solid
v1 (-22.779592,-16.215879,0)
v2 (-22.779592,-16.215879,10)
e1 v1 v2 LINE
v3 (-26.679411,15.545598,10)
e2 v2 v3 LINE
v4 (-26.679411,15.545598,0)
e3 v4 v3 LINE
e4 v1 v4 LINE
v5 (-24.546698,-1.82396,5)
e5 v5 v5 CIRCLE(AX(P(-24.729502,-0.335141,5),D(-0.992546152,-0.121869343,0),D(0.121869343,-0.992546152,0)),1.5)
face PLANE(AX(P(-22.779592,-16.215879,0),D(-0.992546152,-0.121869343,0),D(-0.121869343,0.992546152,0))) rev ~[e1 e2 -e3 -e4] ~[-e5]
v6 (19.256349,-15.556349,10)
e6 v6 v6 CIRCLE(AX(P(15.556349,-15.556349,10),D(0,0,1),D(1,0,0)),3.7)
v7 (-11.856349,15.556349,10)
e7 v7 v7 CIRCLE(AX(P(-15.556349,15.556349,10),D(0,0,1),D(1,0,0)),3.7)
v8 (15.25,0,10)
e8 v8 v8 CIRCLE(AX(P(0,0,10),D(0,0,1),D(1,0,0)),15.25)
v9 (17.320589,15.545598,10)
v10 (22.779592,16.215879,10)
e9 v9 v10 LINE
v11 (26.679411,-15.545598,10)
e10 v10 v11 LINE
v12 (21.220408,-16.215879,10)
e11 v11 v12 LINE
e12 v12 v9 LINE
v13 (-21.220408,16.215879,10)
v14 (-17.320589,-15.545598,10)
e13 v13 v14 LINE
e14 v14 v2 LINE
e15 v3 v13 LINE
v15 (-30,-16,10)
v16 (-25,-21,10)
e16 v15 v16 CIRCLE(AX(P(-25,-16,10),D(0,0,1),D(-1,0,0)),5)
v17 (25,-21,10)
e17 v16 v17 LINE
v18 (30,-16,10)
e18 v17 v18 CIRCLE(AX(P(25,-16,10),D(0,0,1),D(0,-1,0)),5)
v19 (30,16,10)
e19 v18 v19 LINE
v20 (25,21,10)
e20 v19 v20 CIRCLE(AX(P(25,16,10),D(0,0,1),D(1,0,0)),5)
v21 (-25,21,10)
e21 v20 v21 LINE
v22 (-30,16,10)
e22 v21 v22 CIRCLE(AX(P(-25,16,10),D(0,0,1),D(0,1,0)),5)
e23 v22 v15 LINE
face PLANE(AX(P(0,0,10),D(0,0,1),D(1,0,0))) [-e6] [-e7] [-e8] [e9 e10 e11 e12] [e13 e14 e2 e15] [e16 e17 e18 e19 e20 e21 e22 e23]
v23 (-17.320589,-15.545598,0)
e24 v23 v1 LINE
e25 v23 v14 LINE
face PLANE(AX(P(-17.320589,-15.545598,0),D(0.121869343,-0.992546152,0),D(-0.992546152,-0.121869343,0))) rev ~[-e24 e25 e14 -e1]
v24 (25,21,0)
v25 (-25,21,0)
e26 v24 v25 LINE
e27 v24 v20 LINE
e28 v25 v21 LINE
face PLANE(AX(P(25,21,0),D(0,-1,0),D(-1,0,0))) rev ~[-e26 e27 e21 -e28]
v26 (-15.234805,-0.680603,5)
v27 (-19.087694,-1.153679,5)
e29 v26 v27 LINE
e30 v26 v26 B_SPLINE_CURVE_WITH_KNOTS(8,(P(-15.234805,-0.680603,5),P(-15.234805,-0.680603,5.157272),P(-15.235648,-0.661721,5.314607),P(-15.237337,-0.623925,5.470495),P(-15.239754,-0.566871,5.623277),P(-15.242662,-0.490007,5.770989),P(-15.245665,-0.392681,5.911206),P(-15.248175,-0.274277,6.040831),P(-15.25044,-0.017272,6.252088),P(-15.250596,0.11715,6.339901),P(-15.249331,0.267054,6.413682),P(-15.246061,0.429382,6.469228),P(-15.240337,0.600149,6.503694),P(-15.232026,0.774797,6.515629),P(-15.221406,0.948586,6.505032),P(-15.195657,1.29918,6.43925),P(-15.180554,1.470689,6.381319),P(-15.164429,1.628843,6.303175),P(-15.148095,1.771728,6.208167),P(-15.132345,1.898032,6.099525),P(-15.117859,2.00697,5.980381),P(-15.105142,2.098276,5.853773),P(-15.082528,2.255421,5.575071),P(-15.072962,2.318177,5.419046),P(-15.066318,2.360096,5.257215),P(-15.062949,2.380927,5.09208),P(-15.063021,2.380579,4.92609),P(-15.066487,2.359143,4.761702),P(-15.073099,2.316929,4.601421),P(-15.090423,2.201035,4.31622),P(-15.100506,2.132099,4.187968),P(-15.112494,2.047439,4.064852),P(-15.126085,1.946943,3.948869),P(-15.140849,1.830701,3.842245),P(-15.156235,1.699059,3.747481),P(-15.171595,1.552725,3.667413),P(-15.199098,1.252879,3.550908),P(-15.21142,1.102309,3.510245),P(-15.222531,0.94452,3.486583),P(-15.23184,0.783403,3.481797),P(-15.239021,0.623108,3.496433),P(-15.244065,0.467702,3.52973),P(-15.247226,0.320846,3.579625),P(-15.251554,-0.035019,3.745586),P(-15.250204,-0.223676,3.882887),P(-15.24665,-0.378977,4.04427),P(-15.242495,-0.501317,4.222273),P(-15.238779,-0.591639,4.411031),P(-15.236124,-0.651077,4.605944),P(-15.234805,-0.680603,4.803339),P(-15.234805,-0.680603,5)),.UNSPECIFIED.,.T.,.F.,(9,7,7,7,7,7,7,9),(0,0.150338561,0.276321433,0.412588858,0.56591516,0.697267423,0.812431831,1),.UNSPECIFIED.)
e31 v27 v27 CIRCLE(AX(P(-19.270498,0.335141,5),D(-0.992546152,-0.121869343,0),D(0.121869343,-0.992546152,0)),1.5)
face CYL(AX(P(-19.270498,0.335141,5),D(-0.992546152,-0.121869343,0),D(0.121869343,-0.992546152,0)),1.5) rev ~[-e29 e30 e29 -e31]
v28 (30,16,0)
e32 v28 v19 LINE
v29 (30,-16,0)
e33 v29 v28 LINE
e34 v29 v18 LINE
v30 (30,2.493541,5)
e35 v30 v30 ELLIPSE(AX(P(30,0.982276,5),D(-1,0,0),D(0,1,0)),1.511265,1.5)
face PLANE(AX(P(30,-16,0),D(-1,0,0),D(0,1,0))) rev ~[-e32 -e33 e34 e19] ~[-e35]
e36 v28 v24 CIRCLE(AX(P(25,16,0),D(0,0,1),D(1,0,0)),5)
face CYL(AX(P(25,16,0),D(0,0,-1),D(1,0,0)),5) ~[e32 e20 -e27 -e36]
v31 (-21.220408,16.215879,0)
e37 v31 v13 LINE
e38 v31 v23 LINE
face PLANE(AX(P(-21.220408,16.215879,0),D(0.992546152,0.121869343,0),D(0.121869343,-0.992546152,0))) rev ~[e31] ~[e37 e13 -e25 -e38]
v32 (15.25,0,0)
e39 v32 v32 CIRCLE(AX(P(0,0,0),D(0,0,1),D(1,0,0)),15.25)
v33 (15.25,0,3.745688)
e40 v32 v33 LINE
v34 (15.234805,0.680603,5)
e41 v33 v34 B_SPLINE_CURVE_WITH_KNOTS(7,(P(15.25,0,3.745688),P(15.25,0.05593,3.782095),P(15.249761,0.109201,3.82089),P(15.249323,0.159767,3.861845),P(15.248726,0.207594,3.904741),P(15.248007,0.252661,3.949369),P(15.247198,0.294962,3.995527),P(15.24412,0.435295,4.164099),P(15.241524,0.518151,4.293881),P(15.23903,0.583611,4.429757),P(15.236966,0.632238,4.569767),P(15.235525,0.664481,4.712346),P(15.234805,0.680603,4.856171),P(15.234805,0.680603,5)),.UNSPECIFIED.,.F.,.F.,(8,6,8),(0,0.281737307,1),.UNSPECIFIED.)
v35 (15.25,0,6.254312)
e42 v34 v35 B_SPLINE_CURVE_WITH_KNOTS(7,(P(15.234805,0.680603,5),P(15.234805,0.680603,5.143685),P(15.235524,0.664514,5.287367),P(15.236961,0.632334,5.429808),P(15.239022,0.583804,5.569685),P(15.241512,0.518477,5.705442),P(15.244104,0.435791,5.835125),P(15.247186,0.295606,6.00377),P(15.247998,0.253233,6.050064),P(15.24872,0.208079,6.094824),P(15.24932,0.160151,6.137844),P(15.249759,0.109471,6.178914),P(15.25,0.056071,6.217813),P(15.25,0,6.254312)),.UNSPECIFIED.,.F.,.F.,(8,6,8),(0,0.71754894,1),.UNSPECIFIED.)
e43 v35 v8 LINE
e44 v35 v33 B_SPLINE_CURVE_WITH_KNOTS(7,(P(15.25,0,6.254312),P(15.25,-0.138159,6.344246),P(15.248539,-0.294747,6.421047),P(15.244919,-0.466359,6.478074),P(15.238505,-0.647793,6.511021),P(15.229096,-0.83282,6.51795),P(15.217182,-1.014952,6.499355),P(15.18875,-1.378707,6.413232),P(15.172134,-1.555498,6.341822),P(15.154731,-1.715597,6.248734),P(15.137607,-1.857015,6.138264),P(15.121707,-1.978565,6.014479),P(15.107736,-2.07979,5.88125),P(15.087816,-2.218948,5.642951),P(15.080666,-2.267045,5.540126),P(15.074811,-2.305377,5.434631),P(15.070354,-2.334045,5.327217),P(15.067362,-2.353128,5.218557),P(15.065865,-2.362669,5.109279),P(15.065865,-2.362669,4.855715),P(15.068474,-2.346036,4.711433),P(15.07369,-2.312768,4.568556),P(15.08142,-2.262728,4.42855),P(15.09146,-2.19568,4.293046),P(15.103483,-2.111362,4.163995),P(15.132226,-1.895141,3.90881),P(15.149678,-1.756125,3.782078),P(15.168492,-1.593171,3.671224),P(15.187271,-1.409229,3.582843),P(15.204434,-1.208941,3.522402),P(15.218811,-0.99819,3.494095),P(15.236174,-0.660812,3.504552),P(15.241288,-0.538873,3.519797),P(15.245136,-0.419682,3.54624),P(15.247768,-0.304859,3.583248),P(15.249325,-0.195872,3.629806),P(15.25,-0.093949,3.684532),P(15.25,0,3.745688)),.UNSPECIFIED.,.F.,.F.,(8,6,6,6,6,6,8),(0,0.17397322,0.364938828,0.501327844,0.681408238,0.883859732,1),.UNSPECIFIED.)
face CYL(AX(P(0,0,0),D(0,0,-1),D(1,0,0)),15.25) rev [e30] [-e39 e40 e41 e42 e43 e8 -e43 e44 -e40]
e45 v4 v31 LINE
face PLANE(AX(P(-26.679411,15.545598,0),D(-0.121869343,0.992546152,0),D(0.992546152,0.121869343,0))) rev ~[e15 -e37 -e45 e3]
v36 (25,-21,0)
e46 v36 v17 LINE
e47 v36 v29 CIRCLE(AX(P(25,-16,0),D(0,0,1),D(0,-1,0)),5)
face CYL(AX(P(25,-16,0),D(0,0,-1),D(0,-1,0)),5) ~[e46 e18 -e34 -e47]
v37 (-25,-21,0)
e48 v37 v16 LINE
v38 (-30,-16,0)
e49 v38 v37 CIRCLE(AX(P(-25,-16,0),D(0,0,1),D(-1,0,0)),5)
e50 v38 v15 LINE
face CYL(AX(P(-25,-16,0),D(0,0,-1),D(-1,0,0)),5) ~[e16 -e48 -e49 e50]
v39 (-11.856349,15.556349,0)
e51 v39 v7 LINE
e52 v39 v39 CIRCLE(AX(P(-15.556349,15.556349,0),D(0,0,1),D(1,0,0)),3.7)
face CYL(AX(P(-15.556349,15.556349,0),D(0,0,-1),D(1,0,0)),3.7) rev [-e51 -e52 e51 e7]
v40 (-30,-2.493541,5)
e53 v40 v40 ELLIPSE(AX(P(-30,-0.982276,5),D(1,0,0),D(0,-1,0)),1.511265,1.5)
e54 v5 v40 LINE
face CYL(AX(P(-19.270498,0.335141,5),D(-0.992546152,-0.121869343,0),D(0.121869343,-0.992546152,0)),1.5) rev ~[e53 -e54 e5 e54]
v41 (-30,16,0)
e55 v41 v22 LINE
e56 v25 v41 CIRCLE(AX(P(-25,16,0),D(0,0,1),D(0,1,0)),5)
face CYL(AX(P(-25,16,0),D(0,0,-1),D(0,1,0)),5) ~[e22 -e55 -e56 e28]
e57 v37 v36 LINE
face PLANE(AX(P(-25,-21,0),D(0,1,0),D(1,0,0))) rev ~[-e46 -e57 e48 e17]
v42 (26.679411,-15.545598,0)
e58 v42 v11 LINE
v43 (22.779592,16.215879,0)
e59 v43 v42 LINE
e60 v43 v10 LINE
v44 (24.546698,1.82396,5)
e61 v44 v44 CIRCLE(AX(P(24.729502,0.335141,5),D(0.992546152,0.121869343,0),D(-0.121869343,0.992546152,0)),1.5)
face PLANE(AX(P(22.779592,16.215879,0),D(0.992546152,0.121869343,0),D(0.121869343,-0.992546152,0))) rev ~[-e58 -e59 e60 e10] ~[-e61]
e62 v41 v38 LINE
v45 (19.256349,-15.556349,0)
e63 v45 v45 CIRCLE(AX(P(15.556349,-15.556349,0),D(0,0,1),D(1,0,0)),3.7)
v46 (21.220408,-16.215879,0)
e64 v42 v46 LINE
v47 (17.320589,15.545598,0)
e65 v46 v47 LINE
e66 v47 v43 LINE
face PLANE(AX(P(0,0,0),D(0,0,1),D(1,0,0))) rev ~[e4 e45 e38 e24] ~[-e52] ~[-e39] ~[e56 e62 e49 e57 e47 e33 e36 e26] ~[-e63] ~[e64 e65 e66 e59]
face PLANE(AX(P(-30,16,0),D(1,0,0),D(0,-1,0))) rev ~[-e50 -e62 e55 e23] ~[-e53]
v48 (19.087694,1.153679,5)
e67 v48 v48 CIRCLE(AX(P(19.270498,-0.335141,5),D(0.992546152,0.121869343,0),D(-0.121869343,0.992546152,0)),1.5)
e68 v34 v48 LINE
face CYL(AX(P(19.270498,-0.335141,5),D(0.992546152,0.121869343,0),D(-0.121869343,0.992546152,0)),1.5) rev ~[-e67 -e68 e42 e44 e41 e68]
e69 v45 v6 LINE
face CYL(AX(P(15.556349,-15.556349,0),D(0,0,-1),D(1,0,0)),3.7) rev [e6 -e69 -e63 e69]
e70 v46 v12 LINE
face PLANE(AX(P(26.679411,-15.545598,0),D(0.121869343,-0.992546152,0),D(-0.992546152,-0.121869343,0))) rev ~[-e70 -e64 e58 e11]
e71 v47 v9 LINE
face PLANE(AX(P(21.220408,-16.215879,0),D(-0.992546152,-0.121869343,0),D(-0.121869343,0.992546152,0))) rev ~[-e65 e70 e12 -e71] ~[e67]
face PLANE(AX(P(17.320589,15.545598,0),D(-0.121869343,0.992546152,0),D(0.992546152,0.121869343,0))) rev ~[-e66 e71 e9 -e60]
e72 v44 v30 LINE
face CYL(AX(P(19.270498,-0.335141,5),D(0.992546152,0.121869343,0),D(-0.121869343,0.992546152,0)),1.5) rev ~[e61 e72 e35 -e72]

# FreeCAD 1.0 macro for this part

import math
import FreeCAD as App
import Part
import Sketcher
Q = App.Units.Quantity

doc = App.newDocument("Part")
params = doc.addObject("Spreadsheet::Sheet", "Params")
for row, (alias, value) in enumerate([
    ("sketch1_radius", "5 mm"),
    ("sketch1_diameter", "7.4 mm"),
    ("sketch1_diameter2", "30.5 mm"),
    ("sketch1_width", "50 mm"),
    ("sketch1_height", "32 mm"),
    ("pad1_length", "10 mm"),
    ("sketch2_diameter", "3 mm"),
    ("pocket1_length", "25 mm"),
    ("sketch3_diameter", "3 mm"),
    ("pocket2_length", "25 mm"),
], start=1):
    params.set(f"A{row}", alias)
    params.set(f"B{row}", "=" + value)
    params.setAlias(f"B{row}", alias)

body = doc.addObject("PartDesign::Body", "Body")

sketch1 = body.newObject("Sketcher::SketchObject", "Sketch")
sketch1.AttachmentSupport = (doc.getObject("XY_Plane"), [""])
sketch1.MapMode = "FlatFace"
sketch1.addGeometry(Part.LineSegment(App.Vector(25, 21, 0), App.Vector(-25, 21, 0)), False)
sketch1.addGeometry(Part.ArcOfCircle(Part.Circle(App.Vector(-25, 16, 0), App.Vector(0, 0, 1), 5), math.radians(90), math.radians(180)), False)
sketch1.addGeometry(Part.LineSegment(App.Vector(-30, 16, 0), App.Vector(-30, -16, 0)), False)
sketch1.addGeometry(Part.ArcOfCircle(Part.Circle(App.Vector(-25, -16, 0), App.Vector(0, 0, 1), 5), math.radians(180), math.radians(270)), False)
sketch1.addGeometry(Part.LineSegment(App.Vector(-25, -21, 0), App.Vector(25, -21, 0)), False)
sketch1.addGeometry(Part.ArcOfCircle(Part.Circle(App.Vector(25, -16, 0), App.Vector(0, 0, 1), 5), math.radians(-90), math.radians(0)), False)
sketch1.addGeometry(Part.LineSegment(App.Vector(30, -16, 0), App.Vector(30, 16, 0)), False)
sketch1.addGeometry(Part.ArcOfCircle(Part.Circle(App.Vector(25, 16, 0), App.Vector(0, 0, 1), 5), math.radians(0), math.radians(90)), False)
sketch1.addGeometry(Part.Circle(App.Vector(15.6, -15.6, 0), App.Vector(0, 0, 1), 3.7), False)
sketch1.addGeometry(Part.LineSegment(App.Vector(-26.7, 15.5, 0), App.Vector(-21.2, 16.2, 0)), False)
sketch1.addGeometry(Part.LineSegment(App.Vector(-21.2, 16.2, 0), App.Vector(-17.3, -15.5, 0)), False)
sketch1.addGeometry(Part.LineSegment(App.Vector(-17.3, -15.5, 0), App.Vector(-22.8, -16.2, 0)), False)
sketch1.addGeometry(Part.LineSegment(App.Vector(-22.8, -16.2, 0), App.Vector(-26.7, 15.5, 0)), False)
sketch1.addGeometry(Part.Circle(App.Vector(-15.6, 15.6, 0), App.Vector(0, 0, 1), 3.7), False)
sketch1.addGeometry(Part.Circle(App.Vector(0, 0, 0), App.Vector(0, 0, 1), 15.2), False)
sketch1.addGeometry(Part.LineSegment(App.Vector(17.3, 15.5, 0), App.Vector(22.8, 16.2, 0)), False)
sketch1.addGeometry(Part.LineSegment(App.Vector(22.8, 16.2, 0), App.Vector(26.7, -15.5, 0)), False)
sketch1.addGeometry(Part.LineSegment(App.Vector(26.7, -15.5, 0), App.Vector(21.2, -16.2, 0)), False)
sketch1.addGeometry(Part.LineSegment(App.Vector(21.2, -16.2, 0), App.Vector(17.3, 15.5, 0)), False)
sketch1.addConstraint(Sketcher.Constraint("Tangent", 0, 2, 1, 1))
sketch1.addConstraint(Sketcher.Constraint("Tangent", 1, 2, 2, 1))
sketch1.addConstraint(Sketcher.Constraint("Tangent", 2, 2, 3, 1))
sketch1.addConstraint(Sketcher.Constraint("Tangent", 3, 2, 4, 1))
sketch1.addConstraint(Sketcher.Constraint("Tangent", 4, 2, 5, 1))
sketch1.addConstraint(Sketcher.Constraint("Tangent", 5, 2, 6, 1))
sketch1.addConstraint(Sketcher.Constraint("Tangent", 6, 2, 7, 1))
sketch1.addConstraint(Sketcher.Constraint("Tangent", 7, 2, 0, 1))
sketch1.addConstraint(Sketcher.Constraint("Coincident", 9, 2, 10, 1))
sketch1.addConstraint(Sketcher.Constraint("Coincident", 10, 2, 11, 1))
sketch1.addConstraint(Sketcher.Constraint("Coincident", 11, 2, 12, 1))
sketch1.addConstraint(Sketcher.Constraint("Coincident", 12, 2, 9, 1))
sketch1.addConstraint(Sketcher.Constraint("Coincident", 15, 2, 16, 1))
sketch1.addConstraint(Sketcher.Constraint("Coincident", 16, 2, 17, 1))
sketch1.addConstraint(Sketcher.Constraint("Coincident", 17, 2, 18, 1))
sketch1.addConstraint(Sketcher.Constraint("Coincident", 18, 2, 15, 1))
sketch1.addConstraint(Sketcher.Constraint("Horizontal", 0))
sketch1.addConstraint(Sketcher.Constraint("Vertical", 2))
sketch1.addConstraint(Sketcher.Constraint("Horizontal", 4))
sketch1.addConstraint(Sketcher.Constraint("Vertical", 6))
sketch1.addConstraint(Sketcher.Constraint("Coincident", 14, 3, -1, 1))
sketch1.addConstraint(Sketcher.Constraint("Equal", 1, 3))
sketch1.addConstraint(Sketcher.Constraint("Equal", 3, 5))
sketch1.addConstraint(Sketcher.Constraint("Equal", 5, 7))
sketch1.addConstraint(Sketcher.Constraint("Equal", 8, 13))
sketch1.addConstraint(Sketcher.Constraint("Symmetric", 1, 3, 5, 3, -1, 1))
sketch1.addConstraint(Sketcher.Constraint("Symmetric", 8, 3, 13, 3, -1, 1))
sketch1.addConstraint(Sketcher.Constraint("Symmetric", 11, 2, 15, 2, -1, 1))
sketch1.addConstraint(Sketcher.Constraint("Symmetric", 12, 2, 16, 2, -1, 1))
sketch1.addConstraint(Sketcher.Constraint("Symmetric", 9, 2, 17, 2, -1, 1))
sketch1.addConstraint(Sketcher.Constraint("Symmetric", 10, 2, 18, 2, -1, 1))
sketch1.addConstraint(Sketcher.Constraint("Perpendicular", 9, 10))
sketch1.addConstraint(Sketcher.Constraint("Perpendicular", 10, 11))
sketch1.addConstraint(Sketcher.Constraint("Perpendicular", 11, 12))
sketch1.addConstraint(Sketcher.Constraint("Horizontal", 9, 2, 15, 2))
sketch1.addConstraint(Sketcher.Constraint("Radius", 1, 5.0))
sketch1.addConstraint(Sketcher.Constraint("Diameter", 8, 7.4))
sketch1.addConstraint(Sketcher.Constraint("Diameter", 14, 30.5))
sketch1.addConstraint(Sketcher.Constraint("DistanceX", 0, 2, 0, 1, 50.0))
sketch1.addConstraint(Sketcher.Constraint("DistanceY", 2, 2, 2, 1, 32.0))
sketch1.addConstraint(Sketcher.Constraint("Angle", 9, Q("7 deg")))
sketch1.addConstraint(Sketcher.Constraint("Distance", 10, 32.0))
sketch1.addConstraint(Sketcher.Constraint("Distance", 9, 5.5))
sketch1.addConstraint(Sketcher.Constraint("DistanceX", 13, 3, 8, 3, 31.112698))
sketch1.addConstraint(Sketcher.Constraint("DistanceY", 8, 3, 13, 3, 31.112698))
sketch1.addConstraint(Sketcher.Constraint("DistanceX", 10, 2, -1, 1, 17.320589))
sketch1.setExpression("Constraints[35]", "Params.sketch1_radius")
sketch1.setExpression("Constraints[36]", "Params.sketch1_diameter")
sketch1.setExpression("Constraints[37]", "Params.sketch1_diameter2")
sketch1.setExpression("Constraints[38]", "Params.sketch1_width")
sketch1.setExpression("Constraints[39]", "Params.sketch1_height")
pad1 = body.newObject("PartDesign::Pad", "Pad")
pad1.Profile = sketch1
pad1.setExpression("Length", "Params.pad1_length")

sketch2 = body.newObject("Sketcher::SketchObject", "Sketch001")
sketch2.Placement = App.Placement(App.Vector(-18.943751, -2.326, 0), App.Rotation(App.Vector(0.121869343, -0.992546152, 0), App.Vector(0, 0, 1.000000001), App.Vector(-0.992546152, -0.121869343, 0), "ZXY"))
sketch2.addGeometry(Part.Circle(App.Vector(-2.7, 5, 0), App.Vector(0, 0, 1), 1.5), False)
sketch2.addConstraint(Sketcher.Constraint("Diameter", 0, 3.0))
sketch2.addConstraint(Sketcher.Constraint("DistanceY", -1, 1, 0, 3, 5.0))
sketch2.addConstraint(Sketcher.Constraint("DistanceX", 0, 3, -1, 1, 2.681126))
sketch2.setExpression("Constraints[0]", "Params.sketch2_diameter")
pocket1 = body.newObject("PartDesign::Pocket", "Pocket")
pocket1.Profile = sketch2
pocket1.setExpression("Length", "Params.pocket1_length")
pocket1.Midplane = True

sketch3 = body.newObject("Sketcher::SketchObject", "Sketch002")
sketch3.Placement = App.Placement(App.Vector(18.943751, 2.326, 0), App.Rotation(App.Vector(-0.121869343, 0.992546152, 0), App.Vector(0, 0, 1.000000001), App.Vector(0.992546152, 0.121869343, 0), "ZXY"))
sketch3.addGeometry(Part.Circle(App.Vector(-2.7, 5, 0), App.Vector(0, 0, 1), 1.5), False)
sketch3.addConstraint(Sketcher.Constraint("Diameter", 0, 3.0))
sketch3.addConstraint(Sketcher.Constraint("DistanceY", -1, 1, 0, 3, 5.0))
sketch3.addConstraint(Sketcher.Constraint("DistanceX", 0, 3, -1, 1, 2.681126))
sketch3.setExpression("Constraints[0]", "Params.sketch3_diameter")
pocket2 = body.newObject("PartDesign::Pocket", "Pocket001")
pocket2.Profile = sketch3
pocket2.setExpression("Length", "Params.pocket2_length")
pocket2.Midplane = True

doc.recompute()
